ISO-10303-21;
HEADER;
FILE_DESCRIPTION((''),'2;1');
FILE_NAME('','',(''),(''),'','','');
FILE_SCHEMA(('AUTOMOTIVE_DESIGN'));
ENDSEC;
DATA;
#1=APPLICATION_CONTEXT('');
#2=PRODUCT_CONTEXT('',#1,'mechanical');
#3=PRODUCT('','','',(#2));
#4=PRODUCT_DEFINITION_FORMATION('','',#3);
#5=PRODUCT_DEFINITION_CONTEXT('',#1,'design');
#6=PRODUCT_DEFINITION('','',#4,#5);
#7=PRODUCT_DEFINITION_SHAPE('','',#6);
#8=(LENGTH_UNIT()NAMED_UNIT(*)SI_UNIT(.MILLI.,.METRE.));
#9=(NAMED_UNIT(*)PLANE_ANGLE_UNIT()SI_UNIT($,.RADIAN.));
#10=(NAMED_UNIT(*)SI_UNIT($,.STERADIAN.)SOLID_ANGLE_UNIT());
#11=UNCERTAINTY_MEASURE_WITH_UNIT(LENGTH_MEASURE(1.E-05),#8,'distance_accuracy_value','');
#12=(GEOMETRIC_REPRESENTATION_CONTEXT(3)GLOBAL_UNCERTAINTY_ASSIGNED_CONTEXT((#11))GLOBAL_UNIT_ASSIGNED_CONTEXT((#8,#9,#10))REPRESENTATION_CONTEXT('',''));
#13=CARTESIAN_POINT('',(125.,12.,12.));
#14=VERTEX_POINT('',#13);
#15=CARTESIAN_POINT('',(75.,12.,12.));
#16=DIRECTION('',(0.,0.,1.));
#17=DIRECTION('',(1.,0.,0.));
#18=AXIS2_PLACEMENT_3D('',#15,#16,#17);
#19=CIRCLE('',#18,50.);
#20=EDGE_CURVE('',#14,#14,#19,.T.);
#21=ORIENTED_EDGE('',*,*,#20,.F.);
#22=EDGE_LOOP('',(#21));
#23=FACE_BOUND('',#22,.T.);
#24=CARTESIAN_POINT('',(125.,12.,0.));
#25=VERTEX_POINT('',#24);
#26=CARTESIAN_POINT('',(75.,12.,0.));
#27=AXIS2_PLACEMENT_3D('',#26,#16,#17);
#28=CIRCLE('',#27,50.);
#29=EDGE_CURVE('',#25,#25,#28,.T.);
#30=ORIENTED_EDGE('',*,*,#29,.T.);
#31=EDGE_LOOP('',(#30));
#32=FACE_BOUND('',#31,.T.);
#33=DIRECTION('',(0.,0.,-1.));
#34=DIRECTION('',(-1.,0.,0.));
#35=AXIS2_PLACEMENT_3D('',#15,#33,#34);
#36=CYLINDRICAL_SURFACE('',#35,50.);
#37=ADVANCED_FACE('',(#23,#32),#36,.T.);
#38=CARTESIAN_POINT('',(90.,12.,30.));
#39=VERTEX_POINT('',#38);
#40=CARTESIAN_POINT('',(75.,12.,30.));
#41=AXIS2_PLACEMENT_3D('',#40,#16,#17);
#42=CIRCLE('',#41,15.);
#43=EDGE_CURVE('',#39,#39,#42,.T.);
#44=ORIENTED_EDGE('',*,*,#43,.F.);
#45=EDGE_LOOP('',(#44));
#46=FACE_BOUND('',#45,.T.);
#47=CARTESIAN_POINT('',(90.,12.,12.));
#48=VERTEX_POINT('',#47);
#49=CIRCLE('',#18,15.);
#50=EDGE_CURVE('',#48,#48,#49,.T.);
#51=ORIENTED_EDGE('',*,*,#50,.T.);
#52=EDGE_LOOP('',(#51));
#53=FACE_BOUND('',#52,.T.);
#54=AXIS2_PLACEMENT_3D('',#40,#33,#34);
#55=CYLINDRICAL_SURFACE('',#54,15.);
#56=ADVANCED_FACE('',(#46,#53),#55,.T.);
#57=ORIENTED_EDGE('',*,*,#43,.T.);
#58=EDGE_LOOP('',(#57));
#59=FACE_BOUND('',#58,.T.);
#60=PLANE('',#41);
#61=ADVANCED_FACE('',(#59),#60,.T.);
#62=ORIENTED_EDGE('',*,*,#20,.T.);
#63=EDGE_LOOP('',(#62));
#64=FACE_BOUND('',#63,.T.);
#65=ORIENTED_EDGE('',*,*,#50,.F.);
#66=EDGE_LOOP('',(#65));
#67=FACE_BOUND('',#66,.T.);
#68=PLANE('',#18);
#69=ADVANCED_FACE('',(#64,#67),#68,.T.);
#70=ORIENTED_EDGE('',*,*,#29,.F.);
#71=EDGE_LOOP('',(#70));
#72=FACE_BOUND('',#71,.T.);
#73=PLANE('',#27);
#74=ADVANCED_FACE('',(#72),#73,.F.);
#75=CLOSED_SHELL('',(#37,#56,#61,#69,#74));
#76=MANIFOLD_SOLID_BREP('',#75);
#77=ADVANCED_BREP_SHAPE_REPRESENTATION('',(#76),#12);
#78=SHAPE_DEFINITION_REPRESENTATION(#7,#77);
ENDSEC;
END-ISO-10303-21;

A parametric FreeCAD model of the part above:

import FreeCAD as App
import Part
import Sketcher

V = App.Vector
Q = App.Units.Quantity

doc = App.newDocument("Part")
body = doc.addObject("PartDesign::Body", "Body")

# Sketch on XY plane
sketch1 = body.newObject("Sketcher::SketchObject", "Sketch")
sketch1.AttachmentSupport = (doc.getObject("XY_Plane"), [""])
sketch1.MapMode = "FlatFace"
sketch1.addGeometry(Part.Circle(V(75, 12, 0), V(0, 0, 1), 50), False)
sketch1.addConstraint(Sketcher.Constraint("Diameter", 0, Q("100 mm")))
sketch1.addConstraint(Sketcher.Constraint("DistanceX", -1, 1, 0, 3, Q("75 mm")))
sketch1.addConstraint(Sketcher.Constraint("DistanceY", -1, 1, 0, 3, Q("12 mm")))
pad1 = body.newObject("PartDesign::Pad", "Pad")
pad1.Profile = sketch1
pad1.Length = 12

# Sketch on XY plane
sketch2 = body.newObject("Sketcher::SketchObject", "Sketch001")
sketch2.AttachmentSupport = (doc.getObject("XY_Plane"), [""])
sketch2.MapMode = "FlatFace"
sketch2.AttachmentOffset = App.Placement(V(0, 0, 12), App.Rotation())
sketch2.addGeometry(Part.Circle(V(75, 12, 0), V(0, 0, 1), 15), False)
sketch2.addConstraint(Sketcher.Constraint("Diameter", 0, Q("30 mm")))
sketch2.addConstraint(Sketcher.Constraint("DistanceX", -1, 1, 0, 3, Q("75 mm")))
sketch2.addConstraint(Sketcher.Constraint("DistanceY", -1, 1, 0, 3, Q("12 mm")))
pad2 = body.newObject("PartDesign::Pad", "Pad001")
pad2.Profile = sketch2
pad2.Length = 18

doc.recompute()
